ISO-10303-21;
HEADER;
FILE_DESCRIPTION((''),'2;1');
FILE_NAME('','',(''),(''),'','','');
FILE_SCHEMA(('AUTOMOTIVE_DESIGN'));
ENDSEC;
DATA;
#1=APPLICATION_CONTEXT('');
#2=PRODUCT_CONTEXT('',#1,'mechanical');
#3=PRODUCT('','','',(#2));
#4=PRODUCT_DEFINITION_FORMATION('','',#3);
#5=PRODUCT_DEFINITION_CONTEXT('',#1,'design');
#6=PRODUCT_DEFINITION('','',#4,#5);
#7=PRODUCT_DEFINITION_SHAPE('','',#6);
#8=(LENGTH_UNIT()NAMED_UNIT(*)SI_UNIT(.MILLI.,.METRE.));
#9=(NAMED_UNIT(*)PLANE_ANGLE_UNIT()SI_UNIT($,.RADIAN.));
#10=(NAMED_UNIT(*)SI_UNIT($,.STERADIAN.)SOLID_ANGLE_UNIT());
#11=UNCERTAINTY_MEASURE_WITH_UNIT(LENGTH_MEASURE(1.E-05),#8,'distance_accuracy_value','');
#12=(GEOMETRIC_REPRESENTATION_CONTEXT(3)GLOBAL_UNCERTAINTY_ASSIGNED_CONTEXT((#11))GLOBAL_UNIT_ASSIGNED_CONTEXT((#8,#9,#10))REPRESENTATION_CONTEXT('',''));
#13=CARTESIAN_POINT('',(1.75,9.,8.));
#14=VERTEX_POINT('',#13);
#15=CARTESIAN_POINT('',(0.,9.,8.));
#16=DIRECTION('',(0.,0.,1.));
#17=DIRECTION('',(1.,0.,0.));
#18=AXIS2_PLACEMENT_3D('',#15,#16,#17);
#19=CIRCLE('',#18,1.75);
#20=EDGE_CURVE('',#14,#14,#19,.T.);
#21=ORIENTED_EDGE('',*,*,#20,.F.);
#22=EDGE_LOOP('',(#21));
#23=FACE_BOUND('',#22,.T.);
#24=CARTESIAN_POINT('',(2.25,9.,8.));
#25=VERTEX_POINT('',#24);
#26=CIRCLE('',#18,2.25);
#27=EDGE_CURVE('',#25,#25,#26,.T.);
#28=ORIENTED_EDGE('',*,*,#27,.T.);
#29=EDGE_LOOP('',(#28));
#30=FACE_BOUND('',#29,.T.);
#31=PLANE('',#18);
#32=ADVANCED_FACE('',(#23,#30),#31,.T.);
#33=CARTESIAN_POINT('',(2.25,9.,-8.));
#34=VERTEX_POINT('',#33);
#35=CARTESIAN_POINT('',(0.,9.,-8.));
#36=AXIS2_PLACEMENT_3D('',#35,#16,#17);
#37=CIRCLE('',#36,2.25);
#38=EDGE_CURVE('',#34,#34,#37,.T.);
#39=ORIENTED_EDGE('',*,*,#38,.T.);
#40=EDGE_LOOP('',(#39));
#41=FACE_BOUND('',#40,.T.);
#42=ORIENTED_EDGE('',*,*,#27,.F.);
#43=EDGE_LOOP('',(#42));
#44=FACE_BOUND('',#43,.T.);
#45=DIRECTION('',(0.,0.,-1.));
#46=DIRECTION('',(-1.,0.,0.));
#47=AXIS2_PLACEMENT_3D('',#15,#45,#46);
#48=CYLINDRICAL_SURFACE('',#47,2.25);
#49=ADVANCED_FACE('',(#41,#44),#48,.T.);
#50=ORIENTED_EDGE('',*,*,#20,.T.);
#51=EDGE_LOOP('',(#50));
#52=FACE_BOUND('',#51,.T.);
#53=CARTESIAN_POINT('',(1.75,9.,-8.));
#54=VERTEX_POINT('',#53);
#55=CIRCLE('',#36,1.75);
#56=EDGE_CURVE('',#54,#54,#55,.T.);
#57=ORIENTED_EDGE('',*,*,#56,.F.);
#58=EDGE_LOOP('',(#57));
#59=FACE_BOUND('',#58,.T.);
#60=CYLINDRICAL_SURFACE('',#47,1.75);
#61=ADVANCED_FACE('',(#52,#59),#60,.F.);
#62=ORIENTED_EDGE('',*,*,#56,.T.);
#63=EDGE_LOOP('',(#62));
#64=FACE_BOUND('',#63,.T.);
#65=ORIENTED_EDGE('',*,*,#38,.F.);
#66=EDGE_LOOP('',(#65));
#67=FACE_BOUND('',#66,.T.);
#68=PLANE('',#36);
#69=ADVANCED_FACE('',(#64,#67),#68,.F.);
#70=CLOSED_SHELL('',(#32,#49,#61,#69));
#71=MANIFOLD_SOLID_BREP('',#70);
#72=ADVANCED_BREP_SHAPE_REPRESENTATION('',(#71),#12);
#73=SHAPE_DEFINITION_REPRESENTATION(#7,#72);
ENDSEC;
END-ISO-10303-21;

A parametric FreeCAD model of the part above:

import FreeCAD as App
import Part
import Sketcher

V = App.Vector
Q = App.Units.Quantity

doc = App.newDocument("Part")
body = doc.addObject("PartDesign::Body", "Body")

# Sketch on XY plane
sketch1 = doc.addObject("Sketcher::SketchObject", "Sketch")
body.addObject(sketch1)
sketch1.AttachmentSupport = (doc.XY_Plane, [""])
sketch1.MapMode = "FlatFace"
sketch1.addGeometry([
    Part.Circle(V(0, 9, 0), V(0, 0, 1), 2.2),
    Part.Circle(V(0, 9, 0), V(0, 0, 1), 1.8),
], False)
sketch1.addConstraint([
    Sketcher.Constraint("Coincident", 1, 3, 0, 3),
    Sketcher.Constraint("PointOnObject", 0, 3, -2),
    Sketcher.Constraint("Diameter", 0, Q("4.5 mm")),
    Sketcher.Constraint("Diameter", 1, Q("3.5 mm")),
    Sketcher.Constraint("DistanceY", -1, 1, 0, 3, Q("9 mm")),
])
pad1 = doc.addObject("PartDesign::Pad", "Pad")
body.addObject(pad1)
pad1.Profile = sketch1
pad1.Length = 16
pad1.Midplane = True

doc.recompute()
